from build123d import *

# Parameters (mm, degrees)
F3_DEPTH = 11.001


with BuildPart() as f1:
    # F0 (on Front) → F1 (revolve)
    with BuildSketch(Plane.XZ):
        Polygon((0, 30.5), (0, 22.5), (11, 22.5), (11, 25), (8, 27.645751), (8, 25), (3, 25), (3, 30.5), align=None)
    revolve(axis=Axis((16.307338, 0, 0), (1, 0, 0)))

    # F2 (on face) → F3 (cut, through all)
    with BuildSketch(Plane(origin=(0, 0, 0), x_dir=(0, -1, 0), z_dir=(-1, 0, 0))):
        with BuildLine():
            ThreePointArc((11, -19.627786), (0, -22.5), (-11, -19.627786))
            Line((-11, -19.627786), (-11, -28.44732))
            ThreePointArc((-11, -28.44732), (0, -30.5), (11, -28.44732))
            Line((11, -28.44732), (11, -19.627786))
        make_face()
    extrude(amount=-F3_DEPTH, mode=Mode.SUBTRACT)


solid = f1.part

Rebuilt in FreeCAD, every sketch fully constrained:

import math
import FreeCAD as App
import Part
import Sketcher

V = App.Vector
Q = App.Units.Quantity

doc = App.newDocument("Part")
body = doc.addObject("PartDesign::Body", "Body")

sketch1 = doc.addObject("Sketcher::SketchObject", "Sketch")
body.addObject(sketch1)
sketch1.AttachmentSupport = (doc.XZ_Plane, [""])
sketch1.MapMode = "FlatFace"
sketch1.addGeometry([
    Part.LineSegment(V(0, 30.5, 0), V(0, 22.5, 0)),
    Part.LineSegment(V(0, 22.5, 0), V(11, 22.5, 0)),
    Part.LineSegment(V(11, 22.5, 0), V(11, 25, 0)),
    Part.LineSegment(V(11, 25, 0), V(8, 27.6, 0)),
    Part.LineSegment(V(8, 27.6, 0), V(8, 25, 0)),
    Part.LineSegment(V(8, 25, 0), V(3, 25, 0)),
    Part.LineSegment(V(3, 25, 0), V(3, 30.5, 0)),
    Part.LineSegment(V(3, 30.5, 0), V(0, 30.5, 0)),
], False)
sketch1.addConstraint([
    Sketcher.Constraint("Coincident", 0, 2, 1, 1),
    Sketcher.Constraint("Coincident", 1, 2, 2, 1),
    Sketcher.Constraint("Coincident", 2, 2, 3, 1),
    Sketcher.Constraint("Coincident", 3, 2, 4, 1),
    Sketcher.Constraint("Coincident", 4, 2, 5, 1),
    Sketcher.Constraint("Coincident", 5, 2, 6, 1),
    Sketcher.Constraint("Coincident", 6, 2, 7, 1),
    Sketcher.Constraint("Coincident", 7, 2, 0, 1),
    Sketcher.Constraint("Vertical", 0),
    Sketcher.Constraint("Horizontal", 1),
    Sketcher.Constraint("Vertical", 2),
    Sketcher.Constraint("Vertical", 4),
    Sketcher.Constraint("Horizontal", 5),
    Sketcher.Constraint("Vertical", 6),
    Sketcher.Constraint("Horizontal", 7),
    Sketcher.Constraint("PointOnObject", 0, 2, -2),
    Sketcher.Constraint("Horizontal", 2, 2, 4, 2),
    Sketcher.Constraint("DistanceX", 1, 1, 1, 2, Q("11 mm")),
    Sketcher.Constraint("DistanceX", 5, 2, 5, 1, Q("5 mm")),
    Sketcher.Constraint("DistanceX", 7, 2, 7, 1, Q("3 mm")),
    Sketcher.Constraint("DistanceY", 0, 2, 0, 1, Q("8 mm")),
    Sketcher.Constraint("Distance", 3, Q("4 mm")),
    Sketcher.Constraint("DistanceY", 2, 1, 2, 2, Q("2.5 mm")),
    Sketcher.Constraint("DistanceY", -1, 1, 2, 2, Q("25 mm")),
])
revolution = doc.addObject("PartDesign::Revolution", "Revolution")
body.addObject(revolution)
revolution.Profile = sketch1
revolution.ReferenceAxis = (sketch1, ["H_Axis"])
revolution.Angle = 360

sketch2 = doc.addObject("Sketcher::SketchObject", "Sketch001")
body.addObject(sketch2)
sketch2.AttachmentSupport = (doc.YZ_Plane, [""])
sketch2.MapMode = "FlatFace"
sketch2.addGeometry([
    Part.ArcOfCircle(Part.Circle(V(0, 0, 0), V(0, 0, 1), 22), math.radians(-119), math.radians(-61)),
    Part.LineSegment(V(11, -20, 0), V(11, -28, 0)),
    Part.ArcOfCircle(Part.Circle(V(0, 0, 0), V(0, 0, 1), 31), math.radians(-111), math.radians(-69)),
    Part.LineSegment(V(-11, -28, 0), V(-11, -20, 0)),
], False)
sketch2.addConstraint([
    Sketcher.Constraint("Coincident", 0, 2, 1, 1),
    Sketcher.Constraint("Coincident", 1, 2, 2, 2),
    Sketcher.Constraint("Coincident", 2, 1, 3, 1),
    Sketcher.Constraint("Coincident", 3, 2, 0, 1),
    Sketcher.Constraint("Vertical", 1),
    Sketcher.Constraint("Vertical", 3),
    Sketcher.Constraint("Coincident", 0, 3, -1, 1),
    Sketcher.Constraint("Coincident", 2, 3, -1, 1),
    Sketcher.Constraint("Horizontal", 1, 2, 2, 1),
    Sketcher.Constraint("DistanceX", -1, 1, 0, 2, Q("11 mm")),
    Sketcher.Constraint("Radius", 0, Q("22.499997 mm")),
    Sketcher.Constraint("Radius", 2, Q("30.500004 mm")),
])
pocket1 = doc.addObject("PartDesign::Pocket", "Pocket")
body.addObject(pocket1)
pocket1.Profile = sketch2
pocket1.Type = "ThroughAll"
pocket1.Reversed = True

doc.recompute()
